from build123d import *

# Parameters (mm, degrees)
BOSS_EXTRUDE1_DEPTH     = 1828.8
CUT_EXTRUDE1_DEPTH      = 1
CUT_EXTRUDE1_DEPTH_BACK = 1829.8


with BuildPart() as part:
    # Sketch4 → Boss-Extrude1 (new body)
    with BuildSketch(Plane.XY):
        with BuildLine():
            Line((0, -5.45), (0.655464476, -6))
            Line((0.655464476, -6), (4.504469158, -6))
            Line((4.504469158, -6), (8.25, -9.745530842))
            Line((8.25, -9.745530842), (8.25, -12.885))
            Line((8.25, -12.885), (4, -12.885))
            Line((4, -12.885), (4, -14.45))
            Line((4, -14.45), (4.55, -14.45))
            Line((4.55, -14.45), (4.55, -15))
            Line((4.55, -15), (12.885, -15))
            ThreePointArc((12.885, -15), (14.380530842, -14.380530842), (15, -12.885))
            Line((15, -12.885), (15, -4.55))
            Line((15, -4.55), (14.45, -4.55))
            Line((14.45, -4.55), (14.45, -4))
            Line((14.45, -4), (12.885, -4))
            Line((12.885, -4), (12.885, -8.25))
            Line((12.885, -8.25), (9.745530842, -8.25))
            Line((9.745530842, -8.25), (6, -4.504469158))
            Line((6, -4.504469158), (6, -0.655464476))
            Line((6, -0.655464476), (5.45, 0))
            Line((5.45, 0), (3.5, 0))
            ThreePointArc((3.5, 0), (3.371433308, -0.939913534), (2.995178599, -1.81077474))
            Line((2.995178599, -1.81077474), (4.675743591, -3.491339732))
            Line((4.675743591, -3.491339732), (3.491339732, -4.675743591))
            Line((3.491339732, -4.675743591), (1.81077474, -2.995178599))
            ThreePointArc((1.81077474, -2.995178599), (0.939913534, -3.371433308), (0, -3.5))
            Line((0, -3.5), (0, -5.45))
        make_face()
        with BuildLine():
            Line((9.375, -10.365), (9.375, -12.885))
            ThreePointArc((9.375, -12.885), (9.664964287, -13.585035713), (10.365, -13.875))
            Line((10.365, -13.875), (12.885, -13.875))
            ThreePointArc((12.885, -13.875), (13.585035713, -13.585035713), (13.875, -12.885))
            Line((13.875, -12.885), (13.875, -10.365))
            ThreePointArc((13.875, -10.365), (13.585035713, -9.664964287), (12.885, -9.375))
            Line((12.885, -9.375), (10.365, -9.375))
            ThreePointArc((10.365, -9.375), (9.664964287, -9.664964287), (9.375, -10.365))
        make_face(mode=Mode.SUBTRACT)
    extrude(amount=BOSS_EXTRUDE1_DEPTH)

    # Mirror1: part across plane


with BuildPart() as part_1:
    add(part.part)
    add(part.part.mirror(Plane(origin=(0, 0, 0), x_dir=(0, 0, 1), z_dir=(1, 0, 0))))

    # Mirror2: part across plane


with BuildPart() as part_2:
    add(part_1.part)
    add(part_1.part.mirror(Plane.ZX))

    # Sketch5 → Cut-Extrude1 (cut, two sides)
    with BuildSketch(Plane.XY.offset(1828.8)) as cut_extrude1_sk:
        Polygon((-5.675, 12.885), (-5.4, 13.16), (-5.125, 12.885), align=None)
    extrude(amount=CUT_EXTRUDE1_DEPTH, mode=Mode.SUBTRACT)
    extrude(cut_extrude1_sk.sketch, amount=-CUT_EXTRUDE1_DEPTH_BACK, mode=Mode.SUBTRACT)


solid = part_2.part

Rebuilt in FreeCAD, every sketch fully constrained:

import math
import FreeCAD as App
import Part
import Sketcher

V = App.Vector
Q = App.Units.Quantity

doc = App.newDocument("Part")
body = doc.addObject("PartDesign::Body", "Body")

sketch1 = doc.addObject("Sketcher::SketchObject", "Sketch")
body.addObject(sketch1)
sketch1.AttachmentSupport = (doc.XY_Plane, [""])
sketch1.MapMode = "FlatFace"
sketch1.addGeometry(Part.LineSegment(V(0, -5.5, 0), V(0.7, -6, 0)), False)
sketch1.addGeometry(Part.LineSegment(V(0.7, -6, 0), V(4.5, -6, 0)), False)
sketch1.addGeometry(Part.LineSegment(V(4.5, -6, 0), V(8.2, -9.7, 0)), False)
sketch1.addGeometry(Part.LineSegment(V(8.2, -9.7, 0), V(8.2, -12.9, 0)), False)
sketch1.addGeometry(Part.LineSegment(V(8.2, -12.9, 0), V(4, -12.9, 0)), False)
sketch1.addGeometry(Part.LineSegment(V(4, -12.9, 0), V(4, -14.4, 0)), False)
sketch1.addGeometry(Part.LineSegment(V(4, -14.4, 0), V(4.5, -14.4, 0)), False)
sketch1.addGeometry(Part.LineSegment(V(4.5, -14.4, 0), V(4.5, -15, 0)), False)
sketch1.addGeometry(Part.LineSegment(V(4.5, -15, 0), V(12.9, -15, 0)), False)
sketch1.addGeometry(Part.ArcOfCircle(Part.Circle(V(12.9, -12.9, 0), V(0, 0, 1), 2.1), math.radians(-90), math.radians(0)), False)
sketch1.addGeometry(Part.LineSegment(V(15, -12.9, 0), V(15, -4.5, 0)), False)
sketch1.addGeometry(Part.LineSegment(V(15, -4.5, 0), V(14.4, -4.5, 0)), False)
sketch1.addGeometry(Part.LineSegment(V(14.4, -4.5, 0), V(14.4, -4, 0)), False)
sketch1.addGeometry(Part.LineSegment(V(14.4, -4, 0), V(12.9, -4, 0)), False)
sketch1.addGeometry(Part.LineSegment(V(12.9, -4, 0), V(12.9, -8.2, 0)), False)
sketch1.addGeometry(Part.LineSegment(V(12.9, -8.2, 0), V(9.7, -8.2, 0)), False)
sketch1.addGeometry(Part.LineSegment(V(9.7, -8.2, 0), V(6, -4.5, 0)), False)
sketch1.addGeometry(Part.LineSegment(V(6, -4.5, 0), V(6, -0.7, 0)), False)
sketch1.addGeometry(Part.LineSegment(V(6, -0.7, 0), V(5.5, 0, 0)), False)
sketch1.addGeometry(Part.LineSegment(V(5.5, 0, 0), V(3.5, 0, 0)), False)
sketch1.addGeometry(Part.ArcOfCircle(Part.Circle(V(0, 0, 0), V(0, 0, 1), 3.5), math.radians(-31), math.radians(0)), False)
sketch1.addGeometry(Part.LineSegment(V(3, -1.8, 0), V(4.7, -3.5, 0)), False)
sketch1.addGeometry(Part.LineSegment(V(4.7, -3.5, 0), V(3.5, -4.7, 0)), False)
sketch1.addGeometry(Part.LineSegment(V(3.5, -4.7, 0), V(1.8, -3, 0)), False)
sketch1.addGeometry(Part.ArcOfCircle(Part.Circle(V(0, 0, 0), V(0, 0, 1), 3.5), math.radians(-90), math.radians(-59)), False)
sketch1.addGeometry(Part.LineSegment(V(0, -3.5, 0), V(0, -5.5, 0)), False)
sketch1.addGeometry(Part.LineSegment(V(9.4, -12.9, 0), V(9.4, -10.4, 0)), False)
sketch1.addGeometry(Part.ArcOfCircle(Part.Circle(V(10.4, -10.4, 0), V(0, 0, 1), 1), math.radians(90), math.radians(180)), False)
sketch1.addGeometry(Part.LineSegment(V(10.4, -9.4, 0), V(12.9, -9.4, 0)), False)
sketch1.addGeometry(Part.ArcOfCircle(Part.Circle(V(12.9, -10.4, 0), V(0, 0, 1), 1), math.radians(0), math.radians(90)), False)
sketch1.addGeometry(Part.LineSegment(V(13.9, -10.4, 0), V(13.9, -12.9, 0)), False)
sketch1.addGeometry(Part.ArcOfCircle(Part.Circle(V(12.9, -12.9, 0), V(0, 0, 1), 1), math.radians(-90), math.radians(0)), False)
sketch1.addGeometry(Part.LineSegment(V(12.9, -13.9, 0), V(10.4, -13.9, 0)), False)
sketch1.addGeometry(Part.ArcOfCircle(Part.Circle(V(10.4, -12.9, 0), V(0, 0, 1), 1), math.radians(-180), math.radians(-90)), False)
sketch1.addConstraint(Sketcher.Constraint("Coincident", 0, 2, 1, 1))
sketch1.addConstraint(Sketcher.Constraint("Coincident", 1, 2, 2, 1))
sketch1.addConstraint(Sketcher.Constraint("Coincident", 2, 2, 3, 1))
sketch1.addConstraint(Sketcher.Constraint("Coincident", 3, 2, 4, 1))
sketch1.addConstraint(Sketcher.Constraint("Coincident", 4, 2, 5, 1))
sketch1.addConstraint(Sketcher.Constraint("Coincident", 5, 2, 6, 1))
sketch1.addConstraint(Sketcher.Constraint("Coincident", 6, 2, 7, 1))
sketch1.addConstraint(Sketcher.Constraint("Coincident", 7, 2, 8, 1))
sketch1.addConstraint(Sketcher.Constraint("Tangent", 8, 2, 9, 1))
sketch1.addConstraint(Sketcher.Constraint("Tangent", 9, 2, 10, 1))
sketch1.addConstraint(Sketcher.Constraint("Coincident", 10, 2, 11, 1))
sketch1.addConstraint(Sketcher.Constraint("Coincident", 11, 2, 12, 1))
sketch1.addConstraint(Sketcher.Constraint("Coincident", 12, 2, 13, 1))
sketch1.addConstraint(Sketcher.Constraint("Coincident", 13, 2, 14, 1))
sketch1.addConstraint(Sketcher.Constraint("Coincident", 14, 2, 15, 1))
sketch1.addConstraint(Sketcher.Constraint("Coincident", 15, 2, 16, 1))
sketch1.addConstraint(Sketcher.Constraint("Coincident", 16, 2, 17, 1))
sketch1.addConstraint(Sketcher.Constraint("Coincident", 17, 2, 18, 1))
sketch1.addConstraint(Sketcher.Constraint("Coincident", 18, 2, 19, 1))
sketch1.addConstraint(Sketcher.Constraint("Coincident", 19, 2, 20, 2))
sketch1.addConstraint(Sketcher.Constraint("Coincident", 20, 1, 21, 1))
sketch1.addConstraint(Sketcher.Constraint("Coincident", 21, 2, 22, 1))
sketch1.addConstraint(Sketcher.Constraint("Coincident", 22, 2, 23, 1))
sketch1.addConstraint(Sketcher.Constraint("Coincident", 23, 2, 24, 2))
sketch1.addConstraint(Sketcher.Constraint("Coincident", 24, 1, 25, 1))
sketch1.addConstraint(Sketcher.Constraint("Coincident", 25, 2, 0, 1))
sketch1.addConstraint(Sketcher.Constraint("Tangent", 26, 2, 27, 2))
sketch1.addConstraint(Sketcher.Constraint("Tangent", 27, 1, 28, 1))
sketch1.addConstraint(Sketcher.Constraint("Tangent", 28, 2, 29, 2))
sketch1.addConstraint(Sketcher.Constraint("Tangent", 29, 1, 30, 1))
sketch1.addConstraint(Sketcher.Constraint("Tangent", 30, 2, 31, 2))
sketch1.addConstraint(Sketcher.Constraint("Tangent", 31, 1, 32, 1))
sketch1.addConstraint(Sketcher.Constraint("Tangent", 32, 2, 33, 2))
sketch1.addConstraint(Sketcher.Constraint("Tangent", 33, 1, 26, 1))
sketch1.addConstraint(Sketcher.Constraint("Horizontal", 1))
sketch1.addConstraint(Sketcher.Constraint("Vertical", 3))
sketch1.addConstraint(Sketcher.Constraint("Horizontal", 4))
sketch1.addConstraint(Sketcher.Constraint("Vertical", 5))
sketch1.addConstraint(Sketcher.Constraint("Horizontal", 6))
sketch1.addConstraint(Sketcher.Constraint("Vertical", 7))
sketch1.addConstraint(Sketcher.Constraint("Horizontal", 8))
sketch1.addConstraint(Sketcher.Constraint("Vertical", 10))
sketch1.addConstraint(Sketcher.Constraint("Horizontal", 11))
sketch1.addConstraint(Sketcher.Constraint("Vertical", 12))
sketch1.addConstraint(Sketcher.Constraint("Horizontal", 13))
sketch1.addConstraint(Sketcher.Constraint("Vertical", 14))
sketch1.addConstraint(Sketcher.Constraint("Horizontal", 15))
sketch1.addConstraint(Sketcher.Constraint("Vertical", 17))
sketch1.addConstraint(Sketcher.Constraint("Horizontal", 19))
sketch1.addConstraint(Sketcher.Constraint("Vertical", 25))
sketch1.addConstraint(Sketcher.Constraint("Vertical", 26))
sketch1.addConstraint(Sketcher.Constraint("Horizontal", 28))
sketch1.addConstraint(Sketcher.Constraint("Vertical", 30))
sketch1.addConstraint(Sketcher.Constraint("Horizontal", 32))
sketch1.addConstraint(Sketcher.Constraint("Coincident", 20, 3, -1, 1))
sketch1.addConstraint(Sketcher.Constraint("Coincident", 24, 3, -1, 1))
sketch1.addConstraint(Sketcher.Constraint("Coincident", 31, 3, 9, 3))
sketch1.addConstraint(Sketcher.Constraint("Equal", 20, 24))
sketch1.addConstraint(Sketcher.Constraint("Equal", 27, 29))
sketch1.addConstraint(Sketcher.Constraint("Equal", 29, 31))
sketch1.addConstraint(Sketcher.Constraint("Equal", 31, 33))
sketch1.addConstraint(Sketcher.Constraint("PointOnObject", 18, 2, -1))
sketch1.addConstraint(Sketcher.Constraint("PointOnObject", 24, 1, -2))
sketch1.addConstraint(Sketcher.Constraint("Parallel", 2, 16))
sketch1.addConstraint(Sketcher.Constraint("Parallel", 16, 21))
sketch1.addConstraint(Sketcher.Constraint("Perpendicular", 21, 22))
sketch1.addConstraint(Sketcher.Constraint("Perpendicular", 22, 23))
sketch1.addConstraint(Sketcher.Constraint("Horizontal", 33, 3, 3, 2))
sketch1.addConstraint(Sketcher.Constraint("Vertical", 8, 2, 13, 2))
sketch1.addConstraint(Sketcher.Constraint("Equal", 6, 11))
sketch1.addConstraint(Sketcher.Constraint("Equal", 15, 3))
sketch1.addConstraint(Sketcher.Constraint("Equal", 13, 5))
sketch1.addConstraint(Sketcher.Constraint("Equal", 8, 10))
sketch1.addConstraint(Sketcher.Constraint("Equal", 7, 12))
sketch1.addConstraint(Sketcher.Constraint("Equal", 4, 14))
sketch1.addConstraint(Sketcher.Constraint("Equal", 1, 17))
sketch1.addConstraint(Sketcher.Constraint("Equal", 19, 25))
sketch1.addConstraint(Sketcher.Constraint("Equal", 32, 26))
sketch1.addConstraint(Sketcher.Constraint("Equal", 2, 16))
sketch1.addConstraint(Sketcher.Constraint("Equal", 0, 18))
sketch1.addConstraint(Sketcher.Constraint("Equal", 21, 23))
sketch1.addConstraint(Sketcher.Constraint("Radius", 20, Q("3.5 mm")))
sketch1.addConstraint(Sketcher.Constraint("Angle", 0, Q("-40 deg")))
sketch1.addConstraint(Sketcher.Constraint("Angle", 2, Q("-45 deg")))
sketch1.addConstraint(Sketcher.Constraint("Radius", 27, Q("0.99 mm")))
sketch1.addConstraint(Sketcher.Constraint("DistanceY", 0, 2, -1, 1, Q("6 mm")))
sketch1.addConstraint(Sketcher.Constraint("DistanceX", -1, 1, 4, 2, Q("4 mm")))
sketch1.addConstraint(Sketcher.Constraint("DistanceY", 7, 2, -1, 1, Q("15 mm")))
sketch1.addConstraint(Sketcher.Constraint("Radius", 9, Q("2.115 mm")))
sketch1.addConstraint(Sketcher.Constraint("DistanceX", 4, 2, 4, 1, Q("4.25 mm")))
sketch1.addConstraint(Sketcher.Constraint("DistanceX", 6, 1, 6, 2, Q("0.55 mm")))
sketch1.addConstraint(Sketcher.Constraint("DistanceX", 19, 2, 19, 1, Q("1.95 mm")))
sketch1.addConstraint(Sketcher.Constraint("DistanceX", 28, 1, 28, 2, Q("2.52 mm")))
sketch1.addConstraint(Sketcher.Constraint("Distance", 22, Q("1.675 mm")))
sketch1.addConstraint(Sketcher.Constraint("DistanceX", 15, 2, 15, 1, Q("3.139469 mm")))
sketch1.addConstraint(Sketcher.Constraint("DistanceY", 21, 2, -1, 1, Q("3.49134 mm")))
pad1 = doc.addObject("PartDesign::Pad", "Pad")
body.addObject(pad1)
pad1.Profile = sketch1
pad1.Length = 1828.8
body2 = doc.addObject("PartDesign::Body", "Body001")
doc.recompute()

body2.BaseFeature = body
doc.recompute()

mirroring = doc.addObject("Part::Mirroring", "Mirroring")
mirroring.Source = body
mirroring.Base = V(0, 0, 0)
mirroring.Normal = V(1, 0, 0)
body3 = doc.addObject("PartDesign::Body", "Body002")
body3.BaseFeature = mirroring
boolean = doc.addObject("PartDesign::Boolean", "Boolean")
body2.addObject(boolean)
boolean.Type = "Fuse"
boolean.addObjects([body3])
doc.recompute()
body4 = doc.addObject("PartDesign::Body", "Body003")
doc.recompute()

body4.BaseFeature = body2
doc.recompute()

mirroring2 = doc.addObject("Part::Mirroring", "Mirroring001")
mirroring2.Source = body2
mirroring2.Base = V(0, 0, 0)
mirroring2.Normal = V(0, 1, 0)
body5 = doc.addObject("PartDesign::Body", "Body004")
body5.BaseFeature = mirroring2
boolean2 = doc.addObject("PartDesign::Boolean", "Boolean001")
body4.addObject(boolean2)
boolean2.Type = "Fuse"
boolean2.addObjects([body5])
doc.recompute()

sketch2 = doc.addObject("Sketcher::SketchObject", "Sketch001")
body4.addObject(sketch2)
sketch2.AttachmentSupport = (doc.getObject("XY_Plane003"), [""])
sketch2.MapMode = "FlatFace"
sketch2.AttachmentOffset = App.Placement(V(0, 0, 1828.8), App.Rotation())
sketch2.addGeometry(Part.LineSegment(V(-5.4, 13.16, 0), V(-5.67, 12.88, 0)), False)
sketch2.addGeometry(Part.LineSegment(V(-5.67, 12.88, 0), V(-5.12, 12.88, 0)), False)
sketch2.addGeometry(Part.LineSegment(V(-5.12, 12.88, 0), V(-5.4, 13.16, 0)), False)
sketch2.addConstraint(Sketcher.Constraint("Coincident", 0, 2, 1, 1))
sketch2.addConstraint(Sketcher.Constraint("Coincident", 1, 2, 2, 1))
sketch2.addConstraint(Sketcher.Constraint("Coincident", 2, 2, 0, 1))
sketch2.addConstraint(Sketcher.Constraint("Horizontal", 1))
sketch2.addConstraint(Sketcher.Constraint("Perpendicular", 0, 2))
sketch2.addConstraint(Sketcher.Constraint("Equal", 0, 2))
sketch2.addConstraint(Sketcher.Constraint("DistanceX", 1, 1, 1, 2, Q("0.55 mm")))
sketch2.addConstraint(Sketcher.Constraint("DistanceX", 2, 2, -1, 1, Q("5.4 mm")))
sketch2.addConstraint(Sketcher.Constraint("DistanceY", -1, 1, 2, 2, Q("13.16 mm")))
pocket1 = doc.addObject("PartDesign::Pocket", "Pocket")
body4.addObject(pocket1)
pocket1.Profile = sketch2
pocket1.Type = "ThroughAll"
pocket1.Midplane = True
mirroring.Visibility = False
mirroring2.Visibility = False

doc.recompute()
